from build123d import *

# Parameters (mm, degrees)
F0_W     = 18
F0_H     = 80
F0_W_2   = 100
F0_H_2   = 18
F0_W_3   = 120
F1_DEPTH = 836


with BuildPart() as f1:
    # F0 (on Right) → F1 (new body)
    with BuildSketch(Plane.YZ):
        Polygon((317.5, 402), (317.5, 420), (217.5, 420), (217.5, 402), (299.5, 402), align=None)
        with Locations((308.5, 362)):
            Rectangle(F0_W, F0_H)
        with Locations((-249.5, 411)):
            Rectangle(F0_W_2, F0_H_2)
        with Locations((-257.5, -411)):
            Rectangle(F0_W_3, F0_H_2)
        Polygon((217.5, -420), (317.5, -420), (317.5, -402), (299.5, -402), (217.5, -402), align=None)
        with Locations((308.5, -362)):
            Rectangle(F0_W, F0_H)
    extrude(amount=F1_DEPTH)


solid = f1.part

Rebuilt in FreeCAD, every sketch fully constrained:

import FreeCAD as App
import Part
import Sketcher

doc = App.newDocument("Part")
params = doc.addObject("Spreadsheet::Sheet", "Params")
for row, (alias, value) in enumerate([
    ("sketch1_width", "100 mm"),
    ("sketch1_width2", "82 mm"),
    ("sketch1_width3", "120 mm"),
    ("sketch1_height", "80 mm"),
    ("pad1_length", "836 mm"),
], start=1):
    params.set(f"A{row}", alias)
    params.set(f"B{row}", "=" + value)
    params.setAlias(f"B{row}", alias)

body = doc.addObject("PartDesign::Body", "Body")
body.AllowCompound = True

# Sketch on YZ plane
sketch1 = body.newObject("Sketcher::SketchObject", "Sketch")
sketch1.AttachmentSupport = (doc.getObject("YZ_Plane"), [""])
sketch1.MapMode = "FlatFace"
sketch1.addGeometry(Part.LineSegment(App.Vector(317.5, 420, 0), App.Vector(217.5, 420, 0)), False)
sketch1.addGeometry(Part.LineSegment(App.Vector(217.5, 420, 0), App.Vector(217.5, 402, 0)), False)
sketch1.addGeometry(Part.LineSegment(App.Vector(217.5, 402, 0), App.Vector(299.5, 402, 0)), False)
sketch1.addGeometry(Part.LineSegment(App.Vector(299.5, 402, 0), App.Vector(299.5, 322, 0)), False)
sketch1.addGeometry(Part.LineSegment(App.Vector(299.5, 322, 0), App.Vector(317.5, 322, 0)), False)
sketch1.addGeometry(Part.LineSegment(App.Vector(317.5, 322, 0), App.Vector(317.5, 420, 0)), False)
sketch1.addGeometry(Part.LineSegment(App.Vector(-299.5, 420, 0), App.Vector(-299.5, 402, 0)), False)
sketch1.addGeometry(Part.LineSegment(App.Vector(-299.5, 402, 0), App.Vector(-199.5, 402, 0)), False)
sketch1.addGeometry(Part.LineSegment(App.Vector(-199.5, 402, 0), App.Vector(-199.5, 420, 0)), False)
sketch1.addGeometry(Part.LineSegment(App.Vector(-199.5, 420, 0), App.Vector(-299.5, 420, 0)), False)
sketch1.addGeometry(Part.LineSegment(App.Vector(-317.5, -402, 0), App.Vector(-317.5, -420, 0)), False)
sketch1.addGeometry(Part.LineSegment(App.Vector(-317.5, -420, 0), App.Vector(-197.5, -420, 0)), False)
sketch1.addGeometry(Part.LineSegment(App.Vector(-197.5, -420, 0), App.Vector(-197.5, -402, 0)), False)
sketch1.addGeometry(Part.LineSegment(App.Vector(-197.5, -402, 0), App.Vector(-317.5, -402, 0)), False)
sketch1.addGeometry(Part.LineSegment(App.Vector(217.5, -420, 0), App.Vector(317.5, -420, 0)), False)
sketch1.addGeometry(Part.LineSegment(App.Vector(317.5, -420, 0), App.Vector(317.5, -322, 0)), False)
sketch1.addGeometry(Part.LineSegment(App.Vector(317.5, -322, 0), App.Vector(299.5, -322, 0)), False)
sketch1.addGeometry(Part.LineSegment(App.Vector(299.5, -322, 0), App.Vector(299.5, -402, 0)), False)
sketch1.addGeometry(Part.LineSegment(App.Vector(299.5, -402, 0), App.Vector(217.5, -402, 0)), False)
sketch1.addGeometry(Part.LineSegment(App.Vector(217.5, -402, 0), App.Vector(217.5, -420, 0)), False)
sketch1.addConstraint(Sketcher.Constraint("Coincident", 0, 2, 1, 1))
sketch1.addConstraint(Sketcher.Constraint("Coincident", 1, 2, 2, 1))
sketch1.addConstraint(Sketcher.Constraint("Coincident", 2, 2, 3, 1))
sketch1.addConstraint(Sketcher.Constraint("Coincident", 3, 2, 4, 1))
sketch1.addConstraint(Sketcher.Constraint("Coincident", 4, 2, 5, 1))
sketch1.addConstraint(Sketcher.Constraint("Coincident", 5, 2, 0, 1))
sketch1.addConstraint(Sketcher.Constraint("Coincident", 6, 2, 7, 1))
sketch1.addConstraint(Sketcher.Constraint("Coincident", 7, 2, 8, 1))
sketch1.addConstraint(Sketcher.Constraint("Coincident", 8, 2, 9, 1))
sketch1.addConstraint(Sketcher.Constraint("Coincident", 9, 2, 6, 1))
sketch1.addConstraint(Sketcher.Constraint("Coincident", 10, 2, 11, 1))
sketch1.addConstraint(Sketcher.Constraint("Coincident", 11, 2, 12, 1))
sketch1.addConstraint(Sketcher.Constraint("Coincident", 12, 2, 13, 1))
sketch1.addConstraint(Sketcher.Constraint("Coincident", 13, 2, 10, 1))
sketch1.addConstraint(Sketcher.Constraint("Coincident", 14, 2, 15, 1))
sketch1.addConstraint(Sketcher.Constraint("Coincident", 15, 2, 16, 1))
sketch1.addConstraint(Sketcher.Constraint("Coincident", 16, 2, 17, 1))
sketch1.addConstraint(Sketcher.Constraint("Coincident", 17, 2, 18, 1))
sketch1.addConstraint(Sketcher.Constraint("Coincident", 18, 2, 19, 1))
sketch1.addConstraint(Sketcher.Constraint("Coincident", 19, 2, 14, 1))
sketch1.addConstraint(Sketcher.Constraint("Horizontal", 0))
sketch1.addConstraint(Sketcher.Constraint("Vertical", 1))
sketch1.addConstraint(Sketcher.Constraint("Horizontal", 2))
sketch1.addConstraint(Sketcher.Constraint("Vertical", 3))
sketch1.addConstraint(Sketcher.Constraint("Horizontal", 4))
sketch1.addConstraint(Sketcher.Constraint("Vertical", 5))
sketch1.addConstraint(Sketcher.Constraint("Vertical", 6))
sketch1.addConstraint(Sketcher.Constraint("Horizontal", 7))
sketch1.addConstraint(Sketcher.Constraint("Vertical", 8))
sketch1.addConstraint(Sketcher.Constraint("Horizontal", 9))
sketch1.addConstraint(Sketcher.Constraint("Vertical", 10))
sketch1.addConstraint(Sketcher.Constraint("Horizontal", 11))
sketch1.addConstraint(Sketcher.Constraint("Vertical", 12))
sketch1.addConstraint(Sketcher.Constraint("Horizontal", 13))
sketch1.addConstraint(Sketcher.Constraint("Horizontal", 14))
sketch1.addConstraint(Sketcher.Constraint("Vertical", 15))
sketch1.addConstraint(Sketcher.Constraint("Horizontal", 16))
sketch1.addConstraint(Sketcher.Constraint("Vertical", 17))
sketch1.addConstraint(Sketcher.Constraint("Horizontal", 18))
sketch1.addConstraint(Sketcher.Constraint("Vertical", 19))
sketch1.addConstraint(Sketcher.Constraint("Symmetric", 5, 2, 10, 2, -1, 1))
sketch1.addConstraint(Sketcher.Constraint("Symmetric", 6, 2, 17, 2, -1, 1))
sketch1.addConstraint(Sketcher.Constraint("Symmetric", 2, 2, 6, 2, -2))
sketch1.addConstraint(Sketcher.Constraint("Symmetric", 10, 2, 14, 2, -2))
sketch1.addConstraint(Sketcher.Constraint("Horizontal", 5, 2, 8, 2))
sketch1.addConstraint(Sketcher.Constraint("Horizontal", 13, 2, 17, 2))
sketch1.addConstraint(Sketcher.Constraint("Vertical", 1, 2, 18, 2))
sketch1.addConstraint(Sketcher.Constraint("Equal", 0, 7))
sketch1.addConstraint(Sketcher.Constraint("Equal", 16, 1))
sketch1.addConstraint(Sketcher.Constraint("Equal", 5, 15))
sketch1.addConstraint(Sketcher.Constraint("DistanceX", 0, 2, 0, 1, 100.0))
sketch1.addConstraint(Sketcher.Constraint("DistanceX", 2, 1, 2, 2, 82.0))
sketch1.addConstraint(Sketcher.Constraint("DistanceX", 11, 1, 11, 2, 120.0))
sketch1.addConstraint(Sketcher.Constraint("DistanceY", 3, 2, 3, 1, 80.0))
sketch1.addConstraint(Sketcher.Constraint("DistanceY", -1, 1, 0, 2, 420.0))
sketch1.addConstraint(Sketcher.Constraint("DistanceX", 6, 2, 1, 2, 517.0))
sketch1.setExpression("Constraints[50]", "Params.sketch1_width")
sketch1.setExpression("Constraints[51]", "Params.sketch1_width2")
sketch1.setExpression("Constraints[52]", "Params.sketch1_width3")
sketch1.setExpression("Constraints[53]", "Params.sketch1_height")
pad1 = body.newObject("PartDesign::Pad", "Pad")
pad1.Profile = sketch1
pad1.setExpression("Length", "Params.pad1_length")

doc.recompute()
